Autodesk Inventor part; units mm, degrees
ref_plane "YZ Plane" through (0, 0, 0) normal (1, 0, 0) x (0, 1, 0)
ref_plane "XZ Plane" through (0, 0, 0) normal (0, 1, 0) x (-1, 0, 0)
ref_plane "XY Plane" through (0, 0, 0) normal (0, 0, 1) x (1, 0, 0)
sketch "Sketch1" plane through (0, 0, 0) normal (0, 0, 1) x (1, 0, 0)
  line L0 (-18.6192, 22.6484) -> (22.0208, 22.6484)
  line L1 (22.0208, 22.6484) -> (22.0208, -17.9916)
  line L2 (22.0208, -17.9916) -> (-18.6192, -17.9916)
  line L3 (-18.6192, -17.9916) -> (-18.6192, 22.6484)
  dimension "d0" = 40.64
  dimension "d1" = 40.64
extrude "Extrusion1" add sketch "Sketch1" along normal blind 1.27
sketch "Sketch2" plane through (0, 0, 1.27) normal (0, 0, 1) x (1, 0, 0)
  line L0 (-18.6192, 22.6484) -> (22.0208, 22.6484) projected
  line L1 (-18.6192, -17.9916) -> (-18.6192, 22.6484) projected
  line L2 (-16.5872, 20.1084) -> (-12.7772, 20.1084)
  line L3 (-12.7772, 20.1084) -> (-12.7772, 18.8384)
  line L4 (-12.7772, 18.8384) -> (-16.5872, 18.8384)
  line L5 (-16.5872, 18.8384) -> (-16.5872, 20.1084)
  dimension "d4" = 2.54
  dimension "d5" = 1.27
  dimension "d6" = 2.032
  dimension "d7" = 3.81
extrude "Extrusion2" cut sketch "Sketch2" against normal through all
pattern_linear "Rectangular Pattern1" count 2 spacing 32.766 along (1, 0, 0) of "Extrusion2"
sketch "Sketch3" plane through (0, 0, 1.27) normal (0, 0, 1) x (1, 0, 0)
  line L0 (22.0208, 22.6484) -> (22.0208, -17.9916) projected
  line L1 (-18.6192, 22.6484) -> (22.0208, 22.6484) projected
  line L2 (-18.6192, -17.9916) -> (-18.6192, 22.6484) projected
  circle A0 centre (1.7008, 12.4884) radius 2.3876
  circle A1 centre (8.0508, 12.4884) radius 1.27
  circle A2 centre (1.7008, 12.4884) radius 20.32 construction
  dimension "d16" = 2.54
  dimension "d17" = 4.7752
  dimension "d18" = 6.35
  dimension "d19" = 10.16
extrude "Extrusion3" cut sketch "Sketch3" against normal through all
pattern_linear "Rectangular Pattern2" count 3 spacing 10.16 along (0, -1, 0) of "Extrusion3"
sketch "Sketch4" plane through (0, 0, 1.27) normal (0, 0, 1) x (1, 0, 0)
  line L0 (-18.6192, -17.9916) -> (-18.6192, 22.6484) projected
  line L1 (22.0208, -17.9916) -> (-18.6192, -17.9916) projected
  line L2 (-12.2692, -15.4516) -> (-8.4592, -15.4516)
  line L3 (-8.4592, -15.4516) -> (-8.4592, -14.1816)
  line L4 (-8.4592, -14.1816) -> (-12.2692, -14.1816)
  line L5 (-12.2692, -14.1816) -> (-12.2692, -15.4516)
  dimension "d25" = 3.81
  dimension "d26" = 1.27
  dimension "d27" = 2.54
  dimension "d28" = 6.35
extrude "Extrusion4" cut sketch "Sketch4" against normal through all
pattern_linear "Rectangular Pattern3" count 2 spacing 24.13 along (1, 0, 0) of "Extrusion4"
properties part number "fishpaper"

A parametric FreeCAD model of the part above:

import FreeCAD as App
import Part
import Sketcher

V = App.Vector
Q = App.Units.Quantity


def add_polygon(sketch, points):
    """Adds a closed chain of lines whose ends are joined by coincident constraints."""
    first, n = sketch.GeometryCount, len(points)
    for a, b in zip(points, points[1:] + points[:1]):
        sketch.addGeometry(Part.LineSegment(App.Vector(*a, 0), App.Vector(*b, 0)), False)
    for i in range(n):
        sketch.addConstraint(Sketcher.Constraint("Coincident", first + i, 2, first + (i + 1) % n, 1))

doc = App.newDocument("Part")
body = doc.addObject("PartDesign::Body", "Body")

sketch1 = body.newObject("Sketcher::SketchObject", "Sketch")
sketch1.AttachmentSupport = (doc.getObject("XY_Plane"), [""])
sketch1.MapMode = "FlatFace"
add_polygon(sketch1, [(22, 23), (-19, 23), (-19, -18), (22, -18)])
sketch1.addConstraint([
    Sketcher.Constraint("Horizontal", 0),
    Sketcher.Constraint("Vertical", 1),
    Sketcher.Constraint("Horizontal", 2),
    Sketcher.Constraint("Vertical", 3),
    Sketcher.Constraint("Equal", 2, 1),
    Sketcher.Constraint("DistanceX", 0, 2, 0, 1, Q("1.6 in")),
    Sketcher.Constraint("DistanceX", 0, 2, -1, 1, Q("18.6192 mm")),
    Sketcher.Constraint("DistanceY", -1, 1, 0, 2, Q("22.6484 mm")),
])
pad1 = body.newObject("PartDesign::Pad", "Pad")
pad1.Profile = sketch1
pad1.Length = Q("0.05 in")

sketch2 = body.newObject("Sketcher::SketchObject", "Sketch001")
sketch2.AttachmentSupport = (doc.getObject("XY_Plane"), [""])
sketch2.MapMode = "FlatFace"
sketch2.AttachmentOffset = App.Placement(V(0, 0, 0.05 * 25.4), App.Rotation())
add_polygon(sketch2, [(-12.8, 20.1), (-16.6, 20.1), (-16.6, 18.8), (-12.8, 18.8)])
sketch2.addConstraint([
    Sketcher.Constraint("Horizontal", 0),
    Sketcher.Constraint("Vertical", 1),
    Sketcher.Constraint("Horizontal", 2),
    Sketcher.Constraint("Vertical", 3),
    Sketcher.Constraint("DistanceX", 0, 2, 0, 1, Q("0.15 in")),
    Sketcher.Constraint("DistanceY", 1, 2, 1, 1, Q("0.05 in")),
    Sketcher.Constraint("DistanceX", 0, 2, -1, 1, Q("16.5872 mm")),
    Sketcher.Constraint("DistanceY", -1, 1, 0, 2, Q("20.1084 mm")),
])
pocket1 = body.newObject("PartDesign::Pocket", "Pocket")
pocket1.Profile = sketch2
pocket1.Type = "ThroughAll"
doc.recompute()

linearpattern = body.newObject("PartDesign::LinearPattern", "LinearPattern")
linearpattern.Originals = [pocket1]
linearpattern.Direction = (doc.getObject("X_Axis"), [""])
linearpattern.Mode = "offset"
linearpattern.Offset = Q("1.29 in")
linearpattern.Occurrences = 2
body.Tip = linearpattern

sketch3 = body.newObject("Sketcher::SketchObject", "Sketch002")
sketch3.AttachmentSupport = (doc.getObject("XY_Plane"), [""])
sketch3.MapMode = "FlatFace"
sketch3.AttachmentOffset = App.Placement(V(0, 0, 0.05 * 25.4), App.Rotation())
sketch3.addGeometry([
    Part.Circle(V(1.7, 12.5, 0), V(0, 0, 1), 2.4),
    Part.Circle(V(8.1, 12.5, 0), V(0, 0, 1), 1.3),
], False)
sketch3.addConstraint([
    Sketcher.Constraint("Horizontal", 0, 3, 1, 3),
    Sketcher.Constraint("Diameter", 1, Q("0.1 in")),
    Sketcher.Constraint("Diameter", 0, Q("0.188 in")),
    Sketcher.Constraint("DistanceX", 0, 3, 1, 3, Q("0.25 in")),
    Sketcher.Constraint("DistanceX", -1, 1, 0, 3, Q("1.7008 mm")),
    Sketcher.Constraint("DistanceY", -1, 1, 0, 3, Q("12.4884 mm")),
])
pocket2 = body.newObject("PartDesign::Pocket", "Pocket001")
pocket2.Profile = sketch3
pocket2.Type = "ThroughAll"
doc.recompute()

linearpattern2 = body.newObject("PartDesign::LinearPattern", "LinearPattern001")
linearpattern2.Originals = [pocket2]
linearpattern2.Direction = (doc.getObject("Y_Axis"), [""])
linearpattern2.Mode = "offset"
linearpattern2.Offset = Q("0.4 in")
linearpattern2.Occurrences = 3
linearpattern2.Reversed = True
body.Tip = linearpattern2

sketch4 = body.newObject("Sketcher::SketchObject", "Sketch003")
sketch4.AttachmentSupport = (doc.getObject("XY_Plane"), [""])
sketch4.MapMode = "FlatFace"
sketch4.AttachmentOffset = App.Placement(V(0, 0, 0.05 * 25.4), App.Rotation())
add_polygon(sketch4, [(-12.3, -14.2), (-12.3, -15.5), (-8.5, -15.5), (-8.5, -14.2)])
sketch4.addConstraint([
    Sketcher.Constraint("Vertical", 0),
    Sketcher.Constraint("Horizontal", 1),
    Sketcher.Constraint("Vertical", 2),
    Sketcher.Constraint("Horizontal", 3),
    Sketcher.Constraint("DistanceX", 1, 1, 1, 2, Q("0.15 in")),
    Sketcher.Constraint("DistanceY", 0, 2, 0, 1, Q("0.05 in")),
    Sketcher.Constraint("DistanceX", 0, 2, -1, 1, Q("12.2692 mm")),
    Sketcher.Constraint("DistanceY", 0, 2, -1, 1, Q("15.4516 mm")),
])
pocket3 = body.newObject("PartDesign::Pocket", "Pocket002")
pocket3.Profile = sketch4
pocket3.Type = "ThroughAll"
doc.recompute()

linearpattern3 = body.newObject("PartDesign::LinearPattern", "LinearPattern002")
linearpattern3.Originals = [pocket3]
linearpattern3.Direction = (doc.getObject("X_Axis"), [""])
linearpattern3.Mode = "offset"
linearpattern3.Offset = Q("0.95 in")
linearpattern3.Occurrences = 2
body.Tip = linearpattern3

doc.recompute()
